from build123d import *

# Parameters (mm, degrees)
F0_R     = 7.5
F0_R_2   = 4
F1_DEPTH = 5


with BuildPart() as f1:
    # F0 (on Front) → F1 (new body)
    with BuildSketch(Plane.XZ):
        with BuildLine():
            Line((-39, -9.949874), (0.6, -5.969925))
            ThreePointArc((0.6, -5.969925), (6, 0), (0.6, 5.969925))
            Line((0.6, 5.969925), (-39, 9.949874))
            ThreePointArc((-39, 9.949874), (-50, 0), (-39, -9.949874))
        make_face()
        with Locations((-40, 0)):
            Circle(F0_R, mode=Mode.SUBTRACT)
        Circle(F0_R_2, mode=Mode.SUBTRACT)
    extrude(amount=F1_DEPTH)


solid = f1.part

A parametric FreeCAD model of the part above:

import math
import FreeCAD as App
import Part
import Sketcher

doc = App.newDocument("Part")
body = doc.addObject("PartDesign::Body", "Body")

sketch1 = body.newObject("Sketcher::SketchObject", "Sketch")
sketch1.AttachmentSupport = (doc.getObject("XZ_Plane"), [""])
sketch1.MapMode = "FlatFace"
sketch1.addGeometry(Part.LineSegment(App.Vector(-39, -9.9, 0), App.Vector(0.6, -6, 0)), False)
sketch1.addGeometry(Part.ArcOfCircle(Part.Circle(App.Vector(0, 0, 0), App.Vector(0, 0, 1), 6), math.radians(-84), math.radians(84)), False)
sketch1.addGeometry(Part.LineSegment(App.Vector(0.6, 6, 0), App.Vector(-39, 9.9, 0)), False)
sketch1.addGeometry(Part.ArcOfCircle(Part.Circle(App.Vector(-40, 0, 0), App.Vector(0, 0, 1), 10), math.radians(84), math.radians(276)), False)
sketch1.addGeometry(Part.Circle(App.Vector(-40, 0, 0), App.Vector(0, 0, 1), 7.5), False)
sketch1.addGeometry(Part.Circle(App.Vector(0, 0, 0), App.Vector(0, 0, 1), 4), False)
sketch1.addConstraint(Sketcher.Constraint("Tangent", 0, 2, 1, 1))
sketch1.addConstraint(Sketcher.Constraint("Tangent", 1, 2, 2, 1))
sketch1.addConstraint(Sketcher.Constraint("Tangent", 2, 2, 3, 1))
sketch1.addConstraint(Sketcher.Constraint("Tangent", 3, 2, 0, 1))
sketch1.addConstraint(Sketcher.Constraint("Coincident", 1, 3, -1, 1))
sketch1.addConstraint(Sketcher.Constraint("Coincident", 5, 3, -1, 1))
sketch1.addConstraint(Sketcher.Constraint("Coincident", 4, 3, 3, 3))
sketch1.addConstraint(Sketcher.Constraint("PointOnObject", 3, 3, -1))
sketch1.addConstraint(Sketcher.Constraint("Diameter", 4, 15.0))
sketch1.addConstraint(Sketcher.Constraint("Diameter", 5, 8.0))
sketch1.addConstraint(Sketcher.Constraint("Radius", 1, 6.0))
sketch1.addConstraint(Sketcher.Constraint("Radius", 3, 10.0))
sketch1.addConstraint(Sketcher.Constraint("DistanceX", 3, 3, -1, 1, 40.0))
pad1 = body.newObject("PartDesign::Pad", "Pad")
pad1.Profile = sketch1
pad1.Length = 5

doc.recompute()
